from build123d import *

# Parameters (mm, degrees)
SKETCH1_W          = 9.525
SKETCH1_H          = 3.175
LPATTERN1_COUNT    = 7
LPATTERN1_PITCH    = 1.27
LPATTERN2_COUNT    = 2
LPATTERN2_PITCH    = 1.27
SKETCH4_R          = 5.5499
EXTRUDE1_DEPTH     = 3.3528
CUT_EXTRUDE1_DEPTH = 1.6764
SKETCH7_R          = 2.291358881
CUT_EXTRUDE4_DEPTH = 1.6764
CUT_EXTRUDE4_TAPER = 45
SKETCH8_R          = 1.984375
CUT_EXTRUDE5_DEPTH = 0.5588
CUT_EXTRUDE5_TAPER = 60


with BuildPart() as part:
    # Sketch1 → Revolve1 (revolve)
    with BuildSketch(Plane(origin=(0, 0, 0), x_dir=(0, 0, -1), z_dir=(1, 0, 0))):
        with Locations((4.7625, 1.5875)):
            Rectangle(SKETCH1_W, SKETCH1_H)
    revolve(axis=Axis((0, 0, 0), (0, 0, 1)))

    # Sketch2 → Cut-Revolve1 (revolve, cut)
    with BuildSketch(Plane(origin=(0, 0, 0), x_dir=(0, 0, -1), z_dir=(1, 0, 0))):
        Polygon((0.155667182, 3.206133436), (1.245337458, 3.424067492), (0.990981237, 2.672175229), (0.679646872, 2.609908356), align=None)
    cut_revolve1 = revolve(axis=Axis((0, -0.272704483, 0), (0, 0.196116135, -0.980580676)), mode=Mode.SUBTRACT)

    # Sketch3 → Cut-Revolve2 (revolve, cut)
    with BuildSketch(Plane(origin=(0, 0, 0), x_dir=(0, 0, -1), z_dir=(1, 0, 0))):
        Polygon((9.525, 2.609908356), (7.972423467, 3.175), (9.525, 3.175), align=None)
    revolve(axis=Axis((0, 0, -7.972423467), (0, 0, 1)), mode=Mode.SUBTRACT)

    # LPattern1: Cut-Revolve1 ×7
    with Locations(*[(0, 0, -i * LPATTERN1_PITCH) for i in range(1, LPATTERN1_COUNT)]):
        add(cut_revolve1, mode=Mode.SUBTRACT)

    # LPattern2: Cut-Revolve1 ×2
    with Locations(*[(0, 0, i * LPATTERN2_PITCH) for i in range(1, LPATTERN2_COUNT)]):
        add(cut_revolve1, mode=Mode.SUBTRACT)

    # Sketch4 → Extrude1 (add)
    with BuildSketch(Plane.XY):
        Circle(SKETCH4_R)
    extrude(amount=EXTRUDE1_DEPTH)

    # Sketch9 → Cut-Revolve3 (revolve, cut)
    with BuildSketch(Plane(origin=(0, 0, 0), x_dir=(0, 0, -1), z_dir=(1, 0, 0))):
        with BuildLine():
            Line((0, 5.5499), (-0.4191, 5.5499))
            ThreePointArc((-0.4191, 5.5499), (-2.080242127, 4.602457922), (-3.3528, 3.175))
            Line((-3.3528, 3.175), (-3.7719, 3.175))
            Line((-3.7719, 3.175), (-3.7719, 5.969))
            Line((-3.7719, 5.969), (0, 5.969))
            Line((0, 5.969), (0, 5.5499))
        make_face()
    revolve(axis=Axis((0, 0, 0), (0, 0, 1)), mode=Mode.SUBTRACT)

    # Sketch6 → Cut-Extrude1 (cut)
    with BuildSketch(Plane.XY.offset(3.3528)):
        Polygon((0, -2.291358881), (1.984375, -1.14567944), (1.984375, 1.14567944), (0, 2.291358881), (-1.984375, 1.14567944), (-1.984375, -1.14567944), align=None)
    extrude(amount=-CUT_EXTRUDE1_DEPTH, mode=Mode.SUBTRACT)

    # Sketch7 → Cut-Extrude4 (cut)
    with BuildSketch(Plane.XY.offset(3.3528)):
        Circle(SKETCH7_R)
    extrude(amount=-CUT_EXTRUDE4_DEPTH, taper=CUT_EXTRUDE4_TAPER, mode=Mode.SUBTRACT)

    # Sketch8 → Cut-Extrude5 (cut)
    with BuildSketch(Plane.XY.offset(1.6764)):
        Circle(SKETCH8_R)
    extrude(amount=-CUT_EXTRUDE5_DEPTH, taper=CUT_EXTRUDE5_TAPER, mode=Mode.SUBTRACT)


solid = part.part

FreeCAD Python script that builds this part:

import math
import FreeCAD as App
import Part
import Sketcher

V = App.Vector
Q = App.Units.Quantity

doc = App.newDocument("Part")
body = doc.addObject("PartDesign::Body", "Body")

# Sketch on YZ plane
sketch1 = body.newObject("Sketcher::SketchObject", "Sketch")
sketch1.AttachmentSupport = (doc.getObject("YZ_Plane"), [""])
sketch1.MapMode = "FlatFace"
sketch1.addGeometry(Part.LineSegment(V(3.2, 0, 0), V(0, 0, 0)), False)
sketch1.addGeometry(Part.LineSegment(V(0, 0, 0), V(0, -9.5, 0)), False)
sketch1.addGeometry(Part.LineSegment(V(0, -9.5, 0), V(3.2, -9.5, 0)), False)
sketch1.addGeometry(Part.LineSegment(V(3.2, -9.5, 0), V(3.2, 0, 0)), False)
sketch1.addConstraint(Sketcher.Constraint("Coincident", 0, 2, 1, 1))
sketch1.addConstraint(Sketcher.Constraint("Coincident", 1, 2, 2, 1))
sketch1.addConstraint(Sketcher.Constraint("Coincident", 2, 2, 3, 1))
sketch1.addConstraint(Sketcher.Constraint("Coincident", 3, 2, 0, 1))
sketch1.addConstraint(Sketcher.Constraint("Horizontal", 0))
sketch1.addConstraint(Sketcher.Constraint("Vertical", 1))
sketch1.addConstraint(Sketcher.Constraint("Horizontal", 2))
sketch1.addConstraint(Sketcher.Constraint("Vertical", 3))
sketch1.addConstraint(Sketcher.Constraint("Coincident", 0, 2, -1, 1))
sketch1.addConstraint(Sketcher.Constraint("DistanceX", 0, 2, 0, 1, Q("0.125 in")))
sketch1.addConstraint(Sketcher.Constraint("DistanceY", 1, 2, 1, 1, Q("0.375 in")))
revolution = body.newObject("PartDesign::Revolution", "Revolution")
revolution.Profile = sketch1
revolution.ReferenceAxis = (sketch1, ["V_Axis"])
revolution.Angle = 360

# Sketch on YZ plane
sketch2 = body.newObject("Sketcher::SketchObject", "Sketch001")
sketch2.AttachmentSupport = (doc.getObject("YZ_Plane"), [""])
sketch2.MapMode = "FlatFace"
sketch2.addGeometry(Part.LineSegment(V(3.42, -1.25, 0), V(3.21, -0.16, 0)), False)
sketch2.addGeometry(Part.LineSegment(V(3.21, -0.16, 0), V(2.61, -0.68, 0)), False)
sketch2.addGeometry(Part.LineSegment(V(2.61, -0.68, 0), V(2.67, -0.99, 0)), False)
sketch2.addGeometry(Part.LineSegment(V(2.67, -0.99, 0), V(3.42, -1.25, 0)), False)
sketch2.addGeometry(Part.LineSegment(V(-0.11, -0.82, 0), V(0.11, -1.91, 0)), True)  # axis
sketch2.addConstraint(Sketcher.Constraint("Coincident", 0, 2, 1, 1))
sketch2.addConstraint(Sketcher.Constraint("Coincident", 1, 2, 2, 1))
sketch2.addConstraint(Sketcher.Constraint("Coincident", 2, 2, 3, 1))
sketch2.addConstraint(Sketcher.Constraint("Coincident", 3, 2, 0, 1))
sketch2.addConstraint(Sketcher.Constraint("Parallel", 0, 2))
sketch2.addConstraint(Sketcher.Constraint("Parallel", 2, 4))
sketch2.addConstraint(Sketcher.Constraint("Equal", 1, 3))
sketch2.addConstraint(Sketcher.Constraint("Equal", 0, 4))
sketch2.addConstraint(Sketcher.Constraint("Distance", 1, Q("0.03125 in")))
sketch2.addConstraint(Sketcher.Constraint("Distance", 2, Q("0.0125 in")))
sketch2.addConstraint(Sketcher.Constraint("DistanceX", 4, 1, 0, 2, 3.3151))
sketch2.addConstraint(Sketcher.Constraint("Distance", 0, 1.11125))
sketch2.addConstraint(Sketcher.Constraint("DistanceX", -1, 1, 1, 2, 2.609908))
sketch2.addConstraint(Sketcher.Constraint("DistanceY", 2, 2, -1, 1, 0.990981))
sketch2.addConstraint(Sketcher.Constraint("DistanceY", 1, 2, 0, 2, 0.52398))
sketch2.addConstraint(Sketcher.Constraint("DistanceY", 4, 1, 1, 2, 0.13904))
groove = body.newObject("PartDesign::Groove", "Groove")
groove.Profile = sketch2
groove.ReferenceAxis = (sketch2, ["Axis0"])
groove.Angle = 360

# Sketch on YZ plane
sketch3 = body.newObject("Sketcher::SketchObject", "Sketch002")
sketch3.AttachmentSupport = (doc.getObject("YZ_Plane"), [""])
sketch3.MapMode = "FlatFace"
sketch3.addGeometry(Part.LineSegment(V(3.2, -8, 0), V(2.6, -9.5, 0)), False)
sketch3.addGeometry(Part.LineSegment(V(2.6, -9.5, 0), V(3.2, -9.5, 0)), False)
sketch3.addGeometry(Part.LineSegment(V(3.2, -9.5, 0), V(3.2, -8, 0)), False)
sketch3.addConstraint(Sketcher.Constraint("Coincident", 0, 2, 1, 1))
sketch3.addConstraint(Sketcher.Constraint("Coincident", 1, 2, 2, 1))
sketch3.addConstraint(Sketcher.Constraint("Coincident", 2, 2, 0, 1))
sketch3.addConstraint(Sketcher.Constraint("Horizontal", 1))
sketch3.addConstraint(Sketcher.Constraint("Vertical", 2))
sketch3.addConstraint(Sketcher.Constraint("Angle", 0, Q("-110 deg")))
sketch3.addConstraint(Sketcher.Constraint("DistanceY", 0, 2, -1, 1, Q("0.375 in")))
sketch3.addConstraint(Sketcher.Constraint("DistanceX", -1, 1, 1, 2, Q("0.125 in")))
sketch3.addConstraint(Sketcher.Constraint("DistanceX", 1, 1, 1, 2, 0.565092))
groove2 = body.newObject("PartDesign::Groove", "Groove001")
groove2.Profile = sketch3
groove2.ReferenceAxis = (sketch3, ["V_Axis"])
groove2.Angle = 360
doc.recompute()

linearpattern = body.newObject("PartDesign::LinearPattern", "LinearPattern")
linearpattern.Originals = [groove]
linearpattern.Direction = (doc.getObject("Z_Axis"), [""])
linearpattern.Mode = "offset"
linearpattern.Offset = Q("0.05 in")
linearpattern.Occurrences = 7
linearpattern.Reversed = True
body.Tip = linearpattern
doc.recompute()

linearpattern2 = body.newObject("PartDesign::LinearPattern", "LinearPattern001")
linearpattern2.Originals = [groove]
linearpattern2.Direction = (doc.getObject("Z_Axis"), [""])
linearpattern2.Mode = "offset"
linearpattern2.Offset = Q("0.05 in")
linearpattern2.Occurrences = 2
body.Tip = linearpattern2

# Sketch on XY plane
sketch4 = body.newObject("Sketcher::SketchObject", "Sketch003")
sketch4.AttachmentSupport = (doc.getObject("XY_Plane"), [""])
sketch4.MapMode = "FlatFace"
sketch4.addGeometry(Part.Circle(V(0, 0, 0), V(0, 0, 1), 6), False)
sketch4.addConstraint(Sketcher.Constraint("Coincident", 0, 3, -1, 1))
sketch4.addConstraint(Sketcher.Constraint("Diameter", 0, Q("0.437 in")))
pad1 = body.newObject("PartDesign::Pad", "Pad")
pad1.Profile = sketch4
pad1.Length = Q("0.132 in")

# Sketch on YZ plane
sketch5 = body.newObject("Sketcher::SketchObject", "Sketch004")
sketch5.AttachmentSupport = (doc.getObject("YZ_Plane"), [""])
sketch5.MapMode = "FlatFace"
sketch5.addGeometry(Part.LineSegment(V(5.55, 0.42, 0), V(5.55, 0, 0)), False)
sketch5.addGeometry(Part.LineSegment(V(5.55, 0, 0), V(5.97, 0, 0)), False)
sketch5.addGeometry(Part.LineSegment(V(5.97, 0, 0), V(5.97, 3.77, 0)), False)
sketch5.addGeometry(Part.LineSegment(V(5.97, 3.77, 0), V(3.17, 3.77, 0)), False)
sketch5.addGeometry(Part.LineSegment(V(3.17, 3.77, 0), V(3.17, 3.35, 0)), False)
sketch5.addGeometry(Part.ArcOfCircle(Part.Circle(V(0, -1.65, 0), V(0, 0, 1), 5.92), math.radians(20), math.radians(58)), False)
sketch5.addConstraint(Sketcher.Constraint("Coincident", 0, 2, 1, 1))
sketch5.addConstraint(Sketcher.Constraint("Coincident", 1, 2, 2, 1))
sketch5.addConstraint(Sketcher.Constraint("Coincident", 2, 2, 3, 1))
sketch5.addConstraint(Sketcher.Constraint("Coincident", 3, 2, 4, 1))
sketch5.addConstraint(Sketcher.Constraint("Coincident", 4, 2, 5, 2))
sketch5.addConstraint(Sketcher.Constraint("Coincident", 5, 1, 0, 1))
sketch5.addConstraint(Sketcher.Constraint("Vertical", 0))
sketch5.addConstraint(Sketcher.Constraint("Horizontal", 1))
sketch5.addConstraint(Sketcher.Constraint("Vertical", 2))
sketch5.addConstraint(Sketcher.Constraint("Horizontal", 3))
sketch5.addConstraint(Sketcher.Constraint("Vertical", 4))
sketch5.addConstraint(Sketcher.Constraint("PointOnObject", 5, 3, -2))
sketch5.addConstraint(Sketcher.Constraint("PointOnObject", 0, 2, -1))
sketch5.addConstraint(Sketcher.Constraint("Equal", 1, 0))
sketch5.addConstraint(Sketcher.Constraint("Equal", 0, 4))
sketch5.addConstraint(Sketcher.Constraint("DistanceX", 3, 2, 3, 1, Q("0.11 in")))
sketch5.addConstraint(Sketcher.Constraint("DistanceX", 1, 1, 1, 2, Q("0.0165 in")))
sketch5.addConstraint(Sketcher.Constraint("DistanceY", 2, 1, 2, 2, Q("0.1485 in")))
sketch5.addConstraint(Sketcher.Constraint("DistanceX", -1, 1, 1, 2, Q("0.235 in")))
groove3 = body.newObject("PartDesign::Groove", "Groove002")
groove3.Profile = sketch5
groove3.ReferenceAxis = (sketch5, ["V_Axis"])
groove3.Angle = 360

# Sketch on XY plane
sketch6 = body.newObject("Sketcher::SketchObject", "Sketch005")
sketch6.AttachmentSupport = (doc.getObject("XY_Plane"), [""])
sketch6.MapMode = "FlatFace"
sketch6.AttachmentOffset = App.Placement(V(0, 0, 0.132 * 25.4), App.Rotation())
sketch6.addGeometry(Part.LineSegment(V(0, -2.3, 0), V(2, -1.1, 0)), False)
sketch6.addGeometry(Part.LineSegment(V(2, -1.1, 0), V(2, 1.1, 0)), False)
sketch6.addGeometry(Part.LineSegment(V(2, 1.1, 0), V(0, 2.3, 0)), False)
sketch6.addGeometry(Part.LineSegment(V(0, 2.3, 0), V(-2, 1.1, 0)), False)
sketch6.addGeometry(Part.LineSegment(V(-2, 1.1, 0), V(-2, -1.1, 0)), False)
sketch6.addGeometry(Part.LineSegment(V(-2, -1.1, 0), V(0, -2.3, 0)), False)
sketch6.addConstraint(Sketcher.Constraint("Coincident", 0, 2, 1, 1))
sketch6.addConstraint(Sketcher.Constraint("Coincident", 1, 2, 2, 1))
sketch6.addConstraint(Sketcher.Constraint("Coincident", 2, 2, 3, 1))
sketch6.addConstraint(Sketcher.Constraint("Coincident", 3, 2, 4, 1))
sketch6.addConstraint(Sketcher.Constraint("Coincident", 4, 2, 5, 1))
sketch6.addConstraint(Sketcher.Constraint("Coincident", 5, 2, 0, 1))
sketch6.addConstraint(Sketcher.Constraint("Vertical", 1))
sketch6.addConstraint(Sketcher.Constraint("Vertical", 4))
sketch6.addConstraint(Sketcher.Constraint("Symmetric", 0, 2, 3, 2, -1, 1))
sketch6.addConstraint(Sketcher.Constraint("Symmetric", 2, 2, 5, 2, -1, 1))
sketch6.addConstraint(Sketcher.Constraint("PointOnObject", 2, 2, -2))
sketch6.addConstraint(Sketcher.Constraint("Parallel", 2, 5))
sketch6.addConstraint(Sketcher.Constraint("Horizontal", 1, 2, 3, 2))
sketch6.addConstraint(Sketcher.Constraint("Angle", 0, Q("30 deg")))
sketch6.addConstraint(Sketcher.Constraint("DistanceX", -1, 1, 0, 2, Q("0.078125 in")))
sketch6.addConstraint(Sketcher.Constraint("DistanceY", 1, 1, 1, 2, 2.291359))
pocket1 = body.newObject("PartDesign::Pocket", "Pocket")
pocket1.Profile = sketch6
pocket1.Length = Q("0.066 in")

# Sketch on XY plane
sketch7 = body.newObject("Sketcher::SketchObject", "Sketch006")
sketch7.AttachmentSupport = (doc.getObject("XY_Plane"), [""])
sketch7.MapMode = "FlatFace"
sketch7.AttachmentOffset = App.Placement(V(0, 0, 0.132 * 25.4), App.Rotation())
sketch7.addGeometry(Part.Circle(V(0, 0, 0), V(0, 0, 1), 2.3), False)
sketch7.addConstraint(Sketcher.Constraint("Coincident", 0, 3, -1, 1))
sketch7.addConstraint(Sketcher.Constraint("Diameter", 0, 4.582718))
pocket2 = body.newObject("PartDesign::Pocket", "Pocket001")
pocket2.Profile = sketch7
pocket2.Length = Q("0.066 in")
pocket2.TaperAngle = -45

# Sketch on XY plane
sketch8 = body.newObject("Sketcher::SketchObject", "Sketch007")
sketch8.AttachmentSupport = (doc.getObject("XY_Plane"), [""])
sketch8.MapMode = "FlatFace"
sketch8.AttachmentOffset = App.Placement(V(0, 0, 0.066 * 25.4), App.Rotation())
sketch8.addGeometry(Part.Circle(V(0, 0, 0), V(0, 0, 1), 2), False)
sketch8.addConstraint(Sketcher.Constraint("Coincident", 0, 3, -1, 1))
sketch8.addConstraint(Sketcher.Constraint("Diameter", 0, Q("0.15625 in")))
pocket3 = body.newObject("PartDesign::Pocket", "Pocket002")
pocket3.Profile = sketch8
pocket3.Length = Q("0.022 in")
pocket3.TaperAngle = -60

doc.recompute()
